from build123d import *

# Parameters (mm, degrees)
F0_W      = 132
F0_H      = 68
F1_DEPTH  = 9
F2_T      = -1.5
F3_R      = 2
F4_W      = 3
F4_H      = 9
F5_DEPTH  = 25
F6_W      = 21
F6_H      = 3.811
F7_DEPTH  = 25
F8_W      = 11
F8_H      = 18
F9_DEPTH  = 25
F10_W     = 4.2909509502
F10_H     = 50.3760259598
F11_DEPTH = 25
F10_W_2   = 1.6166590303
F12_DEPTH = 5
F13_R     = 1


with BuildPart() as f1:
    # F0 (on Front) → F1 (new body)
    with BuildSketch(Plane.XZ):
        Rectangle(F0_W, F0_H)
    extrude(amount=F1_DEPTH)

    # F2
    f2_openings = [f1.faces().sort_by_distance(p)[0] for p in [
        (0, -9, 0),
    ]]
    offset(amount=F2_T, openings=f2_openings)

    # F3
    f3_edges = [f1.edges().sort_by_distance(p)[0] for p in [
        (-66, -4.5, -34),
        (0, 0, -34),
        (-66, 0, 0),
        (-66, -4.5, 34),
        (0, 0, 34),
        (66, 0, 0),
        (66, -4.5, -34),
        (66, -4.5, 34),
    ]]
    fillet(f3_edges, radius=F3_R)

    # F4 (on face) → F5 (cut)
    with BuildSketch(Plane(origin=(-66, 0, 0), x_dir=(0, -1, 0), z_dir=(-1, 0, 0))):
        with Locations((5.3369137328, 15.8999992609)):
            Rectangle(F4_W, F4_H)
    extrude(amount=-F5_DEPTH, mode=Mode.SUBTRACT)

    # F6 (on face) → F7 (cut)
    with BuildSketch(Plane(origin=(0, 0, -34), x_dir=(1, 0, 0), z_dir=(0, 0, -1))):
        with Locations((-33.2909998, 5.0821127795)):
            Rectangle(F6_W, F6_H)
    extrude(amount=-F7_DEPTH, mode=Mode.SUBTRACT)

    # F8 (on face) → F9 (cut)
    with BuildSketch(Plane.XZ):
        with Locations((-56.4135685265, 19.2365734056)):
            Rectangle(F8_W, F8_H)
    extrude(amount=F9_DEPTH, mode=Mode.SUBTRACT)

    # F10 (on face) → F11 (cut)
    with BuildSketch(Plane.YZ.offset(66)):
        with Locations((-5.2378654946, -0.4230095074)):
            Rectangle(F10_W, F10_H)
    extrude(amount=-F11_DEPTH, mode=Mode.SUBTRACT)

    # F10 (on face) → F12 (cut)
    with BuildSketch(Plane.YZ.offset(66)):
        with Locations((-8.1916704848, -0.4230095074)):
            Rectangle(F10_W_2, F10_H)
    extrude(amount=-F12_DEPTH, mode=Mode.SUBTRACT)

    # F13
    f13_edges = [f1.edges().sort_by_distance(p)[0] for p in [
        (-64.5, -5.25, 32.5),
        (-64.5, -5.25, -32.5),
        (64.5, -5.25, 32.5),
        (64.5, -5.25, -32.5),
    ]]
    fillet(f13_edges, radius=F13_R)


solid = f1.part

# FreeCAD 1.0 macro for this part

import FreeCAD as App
import Part
import Sketcher
from FreeCAD import Vector


def edges_at(feature, points):
    """Names of the edges that pass closest to the given points."""
    edges = feature.Shape.Edges
    near = lambda p: min(range(len(edges)), key=lambda i: edges[i].distToShape(Part.Vertex(*p))[0])
    return sorted({f"Edge{near(p) + 1}" for p in points})


def faces_at(feature, points):
    """Names of the faces that lie closest to the given points."""
    faces = feature.Shape.Faces
    near = lambda p: min(range(len(faces)), key=lambda i: faces[i].distToShape(Part.Vertex(*p))[0])
    return sorted({f"Face{near(p) + 1}" for p in points})

doc = App.newDocument("Part")
body = doc.addObject("PartDesign::Body", "Body")

# Sketch on XZ plane
sketch1 = body.newObject("Sketcher::SketchObject", "Sketch")
sketch1.AttachmentSupport = (doc.getObject("XZ_Plane"), [""])
sketch1.MapMode = "FlatFace"
sketch1.addGeometry([
    Part.LineSegment(Vector(-66, 34, 0), Vector(-66, -34, 0)),
    Part.LineSegment(Vector(-66, -34, 0), Vector(66, -34, 0)),
    Part.LineSegment(Vector(66, -34, 0), Vector(66, 34, 0)),
    Part.LineSegment(Vector(66, 34, 0), Vector(-66, 34, 0)),
], False)
sketch1.addConstraint([
    Sketcher.Constraint("Coincident", 0, 2, 1, 1),
    Sketcher.Constraint("Coincident", 1, 2, 2, 1),
    Sketcher.Constraint("Coincident", 2, 2, 3, 1),
    Sketcher.Constraint("Coincident", 3, 2, 0, 1),
    Sketcher.Constraint("Vertical", 0),
    Sketcher.Constraint("Horizontal", 1),
    Sketcher.Constraint("Vertical", 2),
    Sketcher.Constraint("Horizontal", 3),
    Sketcher.Constraint("Symmetric", 0, 2, 2, 2, -1, 1),
    Sketcher.Constraint("DistanceX", 1, 1, 1, 2, 132.0),
    Sketcher.Constraint("DistanceY", 0, 2, 0, 1, 68.0),
])
pad1 = body.newObject("PartDesign::Pad", "Pad")
pad1.Profile = sketch1
pad1.Length = 9
doc.recompute()

thickness = body.newObject("PartDesign::Thickness", "Thickness")
thickness.Base = (pad1, faces_at(pad1, [(0, -9, 0)]))
thickness.Value = 1.5
thickness.Reversed = True
thickness.Join = "Arc"
doc.recompute()

fillet = body.newObject("PartDesign::Fillet", "Fillet")
fillet.Base = (thickness, edges_at(thickness, [
    (-66, -4.5, -34),
    (0, 0, -34),
    (-66, 0, 0),
    (-66, -4.5, 34),
    (0, 0, 34),
    (66, 0, 0),
    (66, -4.5, -34),
    (66, -4.5, 34),
]))
fillet.Radius = 2

# Sketch on YZ plane
sketch2 = body.newObject("Sketcher::SketchObject", "Sketch001")
sketch2.AttachmentSupport = (doc.getObject("YZ_Plane"), [""])
sketch2.MapMode = "FlatFace"
sketch2.AttachmentOffset = App.Placement(Vector(0, 0, -66), App.Rotation())
sketch2.addGeometry([
    Part.LineSegment(Vector(-3.836914, 20.399999, 0), Vector(-3.836914, 11.399999, 0)),
    Part.LineSegment(Vector(-3.836914, 11.399999, 0), Vector(-6.836914, 11.399999, 0)),
    Part.LineSegment(Vector(-6.836914, 11.399999, 0), Vector(-6.836914, 20.399999, 0)),
    Part.LineSegment(Vector(-6.836914, 20.399999, 0), Vector(-3.836914, 20.399999, 0)),
], False)
sketch2.addConstraint([
    Sketcher.Constraint("Coincident", 0, 2, 1, 1),
    Sketcher.Constraint("Coincident", 1, 2, 2, 1),
    Sketcher.Constraint("Coincident", 2, 2, 3, 1),
    Sketcher.Constraint("Coincident", 3, 2, 0, 1),
    Sketcher.Constraint("Vertical", 0),
    Sketcher.Constraint("Horizontal", 1),
    Sketcher.Constraint("Vertical", 2),
    Sketcher.Constraint("Horizontal", 3),
    Sketcher.Constraint("DistanceX", 1, 2, 1, 1, 3.0),
    Sketcher.Constraint("DistanceY", 0, 2, 0, 1, 9.0),
    Sketcher.Constraint("DistanceY", -1, 1, 0, 2, 11.399999),
    Sketcher.Constraint("DistanceX", 0, 2, -1, 1, 3.836914),
])
pocket1 = body.newObject("PartDesign::Pocket", "Pocket")
pocket1.Profile = sketch2
pocket1.Length = 25
pocket1.Reversed = True

# Sketch on XY plane
sketch3 = body.newObject("Sketcher::SketchObject", "Sketch002")
sketch3.AttachmentSupport = (doc.getObject("XY_Plane"), [""])
sketch3.MapMode = "FlatFace"
sketch3.AttachmentOffset = App.Placement(Vector(0, 0, -34), App.Rotation())
sketch3.addGeometry([
    Part.LineSegment(Vector(-43.791, -6.987613, 0), Vector(-43.791, -3.176613, 0)),
    Part.LineSegment(Vector(-43.791, -3.176613, 0), Vector(-22.791, -3.176613, 0)),
    Part.LineSegment(Vector(-22.791, -3.176613, 0), Vector(-22.791, -6.987613, 0)),
    Part.LineSegment(Vector(-22.791, -6.987613, 0), Vector(-43.791, -6.987613, 0)),
], False)
sketch3.addConstraint([
    Sketcher.Constraint("Coincident", 0, 2, 1, 1),
    Sketcher.Constraint("Coincident", 1, 2, 2, 1),
    Sketcher.Constraint("Coincident", 2, 2, 3, 1),
    Sketcher.Constraint("Coincident", 3, 2, 0, 1),
    Sketcher.Constraint("Vertical", 0),
    Sketcher.Constraint("Horizontal", 1),
    Sketcher.Constraint("Vertical", 2),
    Sketcher.Constraint("Horizontal", 3),
    Sketcher.Constraint("DistanceX", 1, 1, 1, 2, 21.0),
    Sketcher.Constraint("DistanceY", 0, 1, 0, 2, 3.811),
    Sketcher.Constraint("DistanceX", 0, 2, -1, 1, 43.791),
    Sketcher.Constraint("DistanceY", 0, 2, -1, 1, 3.176613),
])
pocket2 = body.newObject("PartDesign::Pocket", "Pocket001")
pocket2.Profile = sketch3
pocket2.Length = 25
pocket2.Reversed = True

# Sketch on XZ plane
sketch4 = body.newObject("Sketcher::SketchObject", "Sketch003")
sketch4.AttachmentSupport = (doc.getObject("XZ_Plane"), [""])
sketch4.MapMode = "FlatFace"
sketch4.addGeometry([
    Part.LineSegment(Vector(-61.913569, 28.236573, 0), Vector(-61.913569, 10.236573, 0)),
    Part.LineSegment(Vector(-61.913569, 10.236573, 0), Vector(-50.913569, 10.236573, 0)),
    Part.LineSegment(Vector(-50.913569, 10.236573, 0), Vector(-50.913569, 28.236573, 0)),
    Part.LineSegment(Vector(-50.913569, 28.236573, 0), Vector(-61.913569, 28.236573, 0)),
], False)
sketch4.addConstraint([
    Sketcher.Constraint("Coincident", 0, 2, 1, 1),
    Sketcher.Constraint("Coincident", 1, 2, 2, 1),
    Sketcher.Constraint("Coincident", 2, 2, 3, 1),
    Sketcher.Constraint("Coincident", 3, 2, 0, 1),
    Sketcher.Constraint("Vertical", 0),
    Sketcher.Constraint("Horizontal", 1),
    Sketcher.Constraint("Vertical", 2),
    Sketcher.Constraint("Horizontal", 3),
    Sketcher.Constraint("DistanceX", 1, 1, 1, 2, 11.0),
    Sketcher.Constraint("DistanceY", 0, 2, 0, 1, 18.0),
    Sketcher.Constraint("DistanceX", 0, 2, -1, 1, 61.913569),
    Sketcher.Constraint("DistanceY", -1, 1, 0, 2, 10.236573),
])
pocket3 = body.newObject("PartDesign::Pocket", "Pocket002")
pocket3.Profile = sketch4
pocket3.Length = 25
pocket3.Reversed = True

# Sketch on YZ plane
sketch5 = body.newObject("Sketcher::SketchObject", "Sketch004")
sketch5.AttachmentSupport = (doc.getObject("YZ_Plane"), [""])
sketch5.MapMode = "FlatFace"
sketch5.AttachmentOffset = App.Placement(Vector(0, 0, 66), App.Rotation())
sketch5.addGeometry([
    Part.LineSegment(Vector(-7.383341, 24.765003, 0), Vector(-7.383341, -25.611022, 0)),
    Part.LineSegment(Vector(-7.383341, -25.611022, 0), Vector(-3.09239, -25.611022, 0)),
    Part.LineSegment(Vector(-3.09239, -25.611022, 0), Vector(-3.09239, 24.765003, 0)),
    Part.LineSegment(Vector(-3.09239, 24.765003, 0), Vector(-7.383341, 24.765003, 0)),
], False)
sketch5.addConstraint([
    Sketcher.Constraint("Coincident", 0, 2, 1, 1),
    Sketcher.Constraint("Coincident", 1, 2, 2, 1),
    Sketcher.Constraint("Coincident", 2, 2, 3, 1),
    Sketcher.Constraint("Coincident", 3, 2, 0, 1),
    Sketcher.Constraint("Vertical", 0),
    Sketcher.Constraint("Horizontal", 1),
    Sketcher.Constraint("Vertical", 2),
    Sketcher.Constraint("Horizontal", 3),
    Sketcher.Constraint("DistanceX", 1, 1, 1, 2, 4.290951),
    Sketcher.Constraint("DistanceY", 0, 2, 0, 1, 50.376026),
    Sketcher.Constraint("DistanceX", 0, 2, -1, 1, 7.383341),
    Sketcher.Constraint("DistanceY", 0, 2, -1, 1, 25.611022),
])
pocket4 = body.newObject("PartDesign::Pocket", "Pocket003")
pocket4.Profile = sketch5
pocket4.Length = 25

# Sketch on YZ plane
sketch6 = body.newObject("Sketcher::SketchObject", "Sketch005")
sketch6.AttachmentSupport = (doc.getObject("YZ_Plane"), [""])
sketch6.MapMode = "FlatFace"
sketch6.AttachmentOffset = App.Placement(Vector(0, 0, 66), App.Rotation())
sketch6.addGeometry([
    Part.LineSegment(Vector(-9, 24.765003, 0), Vector(-9, -25.611022, 0)),
    Part.LineSegment(Vector(-9, -25.611022, 0), Vector(-7.383341, -25.611022, 0)),
    Part.LineSegment(Vector(-7.383341, -25.611022, 0), Vector(-7.383341, 24.765003, 0)),
    Part.LineSegment(Vector(-7.383341, 24.765003, 0), Vector(-9, 24.765003, 0)),
], False)
sketch6.addConstraint([
    Sketcher.Constraint("Coincident", 0, 2, 1, 1),
    Sketcher.Constraint("Coincident", 1, 2, 2, 1),
    Sketcher.Constraint("Coincident", 2, 2, 3, 1),
    Sketcher.Constraint("Coincident", 3, 2, 0, 1),
    Sketcher.Constraint("Vertical", 0),
    Sketcher.Constraint("Horizontal", 1),
    Sketcher.Constraint("Vertical", 2),
    Sketcher.Constraint("Horizontal", 3),
    Sketcher.Constraint("DistanceX", 0, 2, -1, 1, 9.0),
    Sketcher.Constraint("DistanceX", 1, 1, 1, 2, 1.616659),
    Sketcher.Constraint("DistanceY", 0, 2, 0, 1, 50.376026),
    Sketcher.Constraint("DistanceY", 0, 2, -1, 1, 25.611022),
])
pocket5 = body.newObject("PartDesign::Pocket", "Pocket004")
pocket5.Profile = sketch6
pocket5.Length = 5
doc.recompute()

fillet2 = body.newObject("PartDesign::Fillet", "Fillet001")
fillet2.Base = (pocket5, edges_at(pocket5, [
    (-64.5, -5.25, 32.5),
    (-64.5, -5.25, -32.5),
    (64.5, -5.25, 32.5),
    (64.5, -5.25, -32.5),
]))
fillet2.Radius = 1

doc.recompute()
